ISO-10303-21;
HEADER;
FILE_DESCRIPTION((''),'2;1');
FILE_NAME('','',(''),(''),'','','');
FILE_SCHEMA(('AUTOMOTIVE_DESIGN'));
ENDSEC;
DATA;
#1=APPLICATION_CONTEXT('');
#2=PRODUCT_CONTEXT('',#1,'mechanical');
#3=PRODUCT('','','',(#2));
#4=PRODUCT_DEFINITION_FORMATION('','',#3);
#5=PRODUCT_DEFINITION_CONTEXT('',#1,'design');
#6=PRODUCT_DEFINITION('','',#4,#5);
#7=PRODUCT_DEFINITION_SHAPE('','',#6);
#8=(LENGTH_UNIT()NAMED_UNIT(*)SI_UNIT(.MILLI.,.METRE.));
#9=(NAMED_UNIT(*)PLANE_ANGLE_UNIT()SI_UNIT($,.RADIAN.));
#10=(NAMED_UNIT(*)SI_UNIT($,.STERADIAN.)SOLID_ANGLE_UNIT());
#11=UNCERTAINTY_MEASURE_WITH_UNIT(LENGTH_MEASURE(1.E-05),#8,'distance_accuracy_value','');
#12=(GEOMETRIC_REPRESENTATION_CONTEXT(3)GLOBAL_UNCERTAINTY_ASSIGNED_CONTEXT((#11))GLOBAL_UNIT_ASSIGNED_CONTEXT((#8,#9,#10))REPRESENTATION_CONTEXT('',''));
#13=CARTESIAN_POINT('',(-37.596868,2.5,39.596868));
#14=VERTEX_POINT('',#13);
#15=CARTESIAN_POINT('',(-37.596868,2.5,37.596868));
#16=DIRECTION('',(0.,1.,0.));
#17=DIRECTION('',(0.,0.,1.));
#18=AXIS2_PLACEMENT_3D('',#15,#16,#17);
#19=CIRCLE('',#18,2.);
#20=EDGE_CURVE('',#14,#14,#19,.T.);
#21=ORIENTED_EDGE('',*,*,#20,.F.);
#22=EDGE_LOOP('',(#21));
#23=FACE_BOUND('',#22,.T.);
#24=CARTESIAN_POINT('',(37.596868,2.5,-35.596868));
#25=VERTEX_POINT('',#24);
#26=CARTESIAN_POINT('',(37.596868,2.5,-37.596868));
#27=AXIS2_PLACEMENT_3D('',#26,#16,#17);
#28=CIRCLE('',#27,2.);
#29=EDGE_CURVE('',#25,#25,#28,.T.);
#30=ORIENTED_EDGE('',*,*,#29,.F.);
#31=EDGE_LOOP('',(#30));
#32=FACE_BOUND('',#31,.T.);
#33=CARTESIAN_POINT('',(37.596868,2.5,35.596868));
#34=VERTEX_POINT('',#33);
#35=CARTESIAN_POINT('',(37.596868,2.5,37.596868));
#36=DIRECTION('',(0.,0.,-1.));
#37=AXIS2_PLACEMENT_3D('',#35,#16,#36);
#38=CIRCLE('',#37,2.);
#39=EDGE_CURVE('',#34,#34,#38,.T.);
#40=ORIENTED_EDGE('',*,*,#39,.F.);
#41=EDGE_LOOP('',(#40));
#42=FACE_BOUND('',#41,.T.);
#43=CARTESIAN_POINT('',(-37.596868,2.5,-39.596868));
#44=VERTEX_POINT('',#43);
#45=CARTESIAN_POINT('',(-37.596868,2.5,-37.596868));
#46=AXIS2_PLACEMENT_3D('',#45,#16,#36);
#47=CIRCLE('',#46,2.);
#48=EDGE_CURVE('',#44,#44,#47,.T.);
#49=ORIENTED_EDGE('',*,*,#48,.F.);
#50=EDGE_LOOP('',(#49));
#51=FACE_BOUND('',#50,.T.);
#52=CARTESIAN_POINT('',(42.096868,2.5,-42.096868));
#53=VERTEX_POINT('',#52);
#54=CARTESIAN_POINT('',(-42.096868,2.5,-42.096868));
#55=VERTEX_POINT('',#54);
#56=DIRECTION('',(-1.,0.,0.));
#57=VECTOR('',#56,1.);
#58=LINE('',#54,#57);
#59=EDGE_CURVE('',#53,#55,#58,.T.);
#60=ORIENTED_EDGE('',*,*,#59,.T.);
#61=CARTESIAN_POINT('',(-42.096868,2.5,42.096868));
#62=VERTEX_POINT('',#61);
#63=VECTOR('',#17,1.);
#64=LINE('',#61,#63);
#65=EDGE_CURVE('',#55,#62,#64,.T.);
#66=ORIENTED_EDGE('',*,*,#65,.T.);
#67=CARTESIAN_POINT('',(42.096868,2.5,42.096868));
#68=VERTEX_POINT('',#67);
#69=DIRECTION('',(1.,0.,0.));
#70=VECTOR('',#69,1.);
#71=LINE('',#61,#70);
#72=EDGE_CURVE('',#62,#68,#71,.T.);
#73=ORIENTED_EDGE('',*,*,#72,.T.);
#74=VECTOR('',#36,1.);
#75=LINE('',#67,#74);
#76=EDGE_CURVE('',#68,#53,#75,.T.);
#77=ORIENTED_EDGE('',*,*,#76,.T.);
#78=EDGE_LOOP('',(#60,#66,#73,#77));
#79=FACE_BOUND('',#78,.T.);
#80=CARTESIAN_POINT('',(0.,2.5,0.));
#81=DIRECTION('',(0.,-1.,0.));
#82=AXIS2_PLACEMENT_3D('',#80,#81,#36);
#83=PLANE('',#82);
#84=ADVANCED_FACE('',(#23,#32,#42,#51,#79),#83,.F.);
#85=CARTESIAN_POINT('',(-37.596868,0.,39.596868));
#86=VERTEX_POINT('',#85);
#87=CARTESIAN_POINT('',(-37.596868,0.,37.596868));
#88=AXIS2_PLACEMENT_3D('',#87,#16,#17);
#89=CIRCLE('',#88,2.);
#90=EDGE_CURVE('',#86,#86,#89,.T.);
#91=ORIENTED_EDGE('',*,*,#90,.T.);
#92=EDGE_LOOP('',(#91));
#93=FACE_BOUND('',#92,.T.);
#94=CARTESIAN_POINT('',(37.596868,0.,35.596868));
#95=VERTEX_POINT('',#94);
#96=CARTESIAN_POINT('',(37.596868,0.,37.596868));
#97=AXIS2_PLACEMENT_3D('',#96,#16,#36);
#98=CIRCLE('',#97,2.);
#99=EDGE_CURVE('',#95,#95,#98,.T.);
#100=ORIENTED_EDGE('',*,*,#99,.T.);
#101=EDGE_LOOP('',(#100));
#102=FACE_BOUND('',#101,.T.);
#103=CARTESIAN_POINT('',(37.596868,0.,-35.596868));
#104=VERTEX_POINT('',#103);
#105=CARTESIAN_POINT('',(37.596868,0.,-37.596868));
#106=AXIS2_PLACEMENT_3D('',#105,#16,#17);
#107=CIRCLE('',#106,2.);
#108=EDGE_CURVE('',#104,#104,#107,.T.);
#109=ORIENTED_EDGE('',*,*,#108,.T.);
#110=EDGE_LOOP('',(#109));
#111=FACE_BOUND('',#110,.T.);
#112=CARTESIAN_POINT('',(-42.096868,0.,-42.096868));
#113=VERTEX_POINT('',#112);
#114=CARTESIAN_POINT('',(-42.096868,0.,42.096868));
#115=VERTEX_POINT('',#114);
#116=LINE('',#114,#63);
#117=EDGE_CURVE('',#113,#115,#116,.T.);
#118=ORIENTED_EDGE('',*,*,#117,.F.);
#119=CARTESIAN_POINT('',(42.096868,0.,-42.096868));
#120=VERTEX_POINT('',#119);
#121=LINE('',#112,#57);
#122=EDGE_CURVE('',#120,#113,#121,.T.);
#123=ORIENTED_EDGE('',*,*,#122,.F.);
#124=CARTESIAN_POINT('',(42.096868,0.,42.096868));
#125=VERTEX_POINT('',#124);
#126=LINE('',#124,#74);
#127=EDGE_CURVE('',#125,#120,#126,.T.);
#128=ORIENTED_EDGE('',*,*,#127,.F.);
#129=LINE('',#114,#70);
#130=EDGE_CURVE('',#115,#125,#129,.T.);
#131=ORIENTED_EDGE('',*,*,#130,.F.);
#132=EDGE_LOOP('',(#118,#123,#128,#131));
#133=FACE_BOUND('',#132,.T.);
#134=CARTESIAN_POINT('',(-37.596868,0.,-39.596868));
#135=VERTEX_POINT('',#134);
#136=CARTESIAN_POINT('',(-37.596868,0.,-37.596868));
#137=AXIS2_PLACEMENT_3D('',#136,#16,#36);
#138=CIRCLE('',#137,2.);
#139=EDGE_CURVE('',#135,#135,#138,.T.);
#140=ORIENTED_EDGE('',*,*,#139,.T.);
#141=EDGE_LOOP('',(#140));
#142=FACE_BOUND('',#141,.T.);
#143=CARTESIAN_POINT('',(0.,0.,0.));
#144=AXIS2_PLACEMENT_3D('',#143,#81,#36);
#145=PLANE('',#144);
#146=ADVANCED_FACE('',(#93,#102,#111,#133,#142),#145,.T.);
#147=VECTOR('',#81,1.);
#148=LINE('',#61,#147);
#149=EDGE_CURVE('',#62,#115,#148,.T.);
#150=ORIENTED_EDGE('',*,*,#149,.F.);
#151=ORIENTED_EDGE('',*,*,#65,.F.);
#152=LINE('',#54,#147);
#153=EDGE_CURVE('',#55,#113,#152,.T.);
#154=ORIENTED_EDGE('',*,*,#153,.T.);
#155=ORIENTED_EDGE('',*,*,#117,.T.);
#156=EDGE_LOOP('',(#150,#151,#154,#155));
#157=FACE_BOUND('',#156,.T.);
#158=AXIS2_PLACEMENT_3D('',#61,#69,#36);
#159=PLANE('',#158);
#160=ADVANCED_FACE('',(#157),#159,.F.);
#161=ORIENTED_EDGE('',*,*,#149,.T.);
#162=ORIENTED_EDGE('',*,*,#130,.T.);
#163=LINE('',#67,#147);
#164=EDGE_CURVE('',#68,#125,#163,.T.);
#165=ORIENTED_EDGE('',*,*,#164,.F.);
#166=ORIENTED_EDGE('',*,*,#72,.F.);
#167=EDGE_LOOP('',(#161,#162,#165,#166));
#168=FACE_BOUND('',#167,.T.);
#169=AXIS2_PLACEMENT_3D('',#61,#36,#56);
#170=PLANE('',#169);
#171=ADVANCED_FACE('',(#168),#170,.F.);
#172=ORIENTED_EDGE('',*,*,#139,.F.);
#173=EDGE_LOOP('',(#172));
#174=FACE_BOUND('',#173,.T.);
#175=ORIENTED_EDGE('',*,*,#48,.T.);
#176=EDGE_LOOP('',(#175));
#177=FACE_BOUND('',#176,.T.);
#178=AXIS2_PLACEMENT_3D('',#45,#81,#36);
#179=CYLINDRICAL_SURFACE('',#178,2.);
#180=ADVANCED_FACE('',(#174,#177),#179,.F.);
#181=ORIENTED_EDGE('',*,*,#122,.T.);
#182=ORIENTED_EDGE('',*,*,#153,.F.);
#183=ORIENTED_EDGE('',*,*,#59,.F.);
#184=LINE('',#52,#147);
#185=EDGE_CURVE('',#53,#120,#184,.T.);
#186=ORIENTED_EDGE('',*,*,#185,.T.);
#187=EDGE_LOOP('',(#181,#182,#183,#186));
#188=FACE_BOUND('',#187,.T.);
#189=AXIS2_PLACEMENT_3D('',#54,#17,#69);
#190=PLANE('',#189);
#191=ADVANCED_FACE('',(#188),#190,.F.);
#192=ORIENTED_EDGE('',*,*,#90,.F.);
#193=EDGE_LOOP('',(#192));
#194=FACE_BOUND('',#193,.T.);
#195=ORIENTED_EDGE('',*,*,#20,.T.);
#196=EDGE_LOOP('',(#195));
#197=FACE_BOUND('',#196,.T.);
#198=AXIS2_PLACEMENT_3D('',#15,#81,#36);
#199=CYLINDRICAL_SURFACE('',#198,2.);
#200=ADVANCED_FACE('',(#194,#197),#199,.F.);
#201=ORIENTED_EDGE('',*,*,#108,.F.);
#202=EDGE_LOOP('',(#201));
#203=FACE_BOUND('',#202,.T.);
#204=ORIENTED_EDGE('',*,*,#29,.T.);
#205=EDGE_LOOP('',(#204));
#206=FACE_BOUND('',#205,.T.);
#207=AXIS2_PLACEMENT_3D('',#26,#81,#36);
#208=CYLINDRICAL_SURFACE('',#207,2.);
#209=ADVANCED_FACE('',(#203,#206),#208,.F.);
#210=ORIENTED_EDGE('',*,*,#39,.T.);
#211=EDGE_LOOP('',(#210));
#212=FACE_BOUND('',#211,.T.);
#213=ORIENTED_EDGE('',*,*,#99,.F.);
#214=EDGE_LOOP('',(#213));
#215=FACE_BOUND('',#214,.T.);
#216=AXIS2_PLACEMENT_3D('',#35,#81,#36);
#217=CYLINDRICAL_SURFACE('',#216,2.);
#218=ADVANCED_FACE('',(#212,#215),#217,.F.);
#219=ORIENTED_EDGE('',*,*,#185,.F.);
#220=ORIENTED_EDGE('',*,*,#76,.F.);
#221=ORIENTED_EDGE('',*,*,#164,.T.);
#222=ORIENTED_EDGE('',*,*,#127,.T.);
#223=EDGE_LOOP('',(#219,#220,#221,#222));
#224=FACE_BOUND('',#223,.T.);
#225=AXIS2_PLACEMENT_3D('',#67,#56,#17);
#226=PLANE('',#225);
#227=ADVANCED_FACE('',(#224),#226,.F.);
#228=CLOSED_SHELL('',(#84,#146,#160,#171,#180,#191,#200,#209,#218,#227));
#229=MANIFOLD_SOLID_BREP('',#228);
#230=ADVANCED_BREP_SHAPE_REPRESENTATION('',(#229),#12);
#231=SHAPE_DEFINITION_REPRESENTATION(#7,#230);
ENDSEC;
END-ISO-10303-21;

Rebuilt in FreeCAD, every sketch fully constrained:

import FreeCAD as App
import Part
import Sketcher
from FreeCAD import Vector
Q = App.Units.Quantity

doc = App.newDocument("Part")
body = doc.addObject("PartDesign::Body", "Body")

# Sketch on XZ plane
sketch1 = body.newObject("Sketcher::SketchObject", "Sketch")
sketch1.AttachmentSupport = (doc.getObject("XZ_Plane"), [""])
sketch1.MapMode = "FlatFace"
sketch1.addGeometry([
    Part.LineSegment(Vector(-42.096868, -42.096868, 0), Vector(-42.096868, 42.096868, 0)),  # 0
    Part.LineSegment(Vector(-42.096868, 42.096868, 0), Vector(42.096868, 42.096868, 0)),  # 1
    Part.LineSegment(Vector(42.096868, 42.096868, 0), Vector(42.096868, -42.096868, 0)),  # 2
    Part.LineSegment(Vector(42.096868, -42.096868, 0), Vector(-42.096868, -42.096868, 0)),  # 3
    Part.Circle(Vector(-37.596868, 37.596868, 0), Vector(0, 0, 1), 2),  # 4
    Part.Circle(Vector(37.596868, 37.596868, 0), Vector(0, 0, 1), 2),  # 5
    Part.Circle(Vector(-37.596868, -37.596868, 0), Vector(0, 0, 1), 2),  # 6
    Part.Circle(Vector(37.596868, -37.596868, 0), Vector(0, 0, 1), 2),  # 7
], False)
sketch1.addConstraint([
    Sketcher.Constraint("Coincident", 0, 2, 1, 1),
    Sketcher.Constraint("Coincident", 1, 2, 2, 1),
    Sketcher.Constraint("Coincident", 2, 2, 3, 1),
    Sketcher.Constraint("Coincident", 3, 2, 0, 1),
    Sketcher.Constraint("Vertical", 0),
    Sketcher.Constraint("Horizontal", 1),
    Sketcher.Constraint("Vertical", 2),
    Sketcher.Constraint("Horizontal", 3),
    Sketcher.Constraint("Equal", 4, 5),
    Sketcher.Constraint("Equal", 5, 6),
    Sketcher.Constraint("Equal", 6, 7),
    Sketcher.Constraint("Symmetric", 5, 3, 6, 3, -1, 1),
    Sketcher.Constraint("Symmetric", 4, 3, 7, 3, -1, 1),
    Sketcher.Constraint("Symmetric", 0, 2, 2, 2, -1, 1),
    Sketcher.Constraint("Symmetric", 4, 3, 5, 3, -2),
    Sketcher.Constraint("Equal", 3, 0),
    Sketcher.Constraint("Diameter", 4, Q("4 mm")),
    Sketcher.Constraint("DistanceX", 0, 2, 4, 3, Q("4.5 mm")),
    Sketcher.Constraint("DistanceY", 4, 3, 0, 2, Q("4.5 mm")),
    Sketcher.Constraint("DistanceX", 1, 1, 1, 2, Q("84.193735 mm")),
])
pad1 = body.newObject("PartDesign::Pad", "Pad")
pad1.Profile = sketch1
pad1.Length = 2.5
pad1.Reversed = True

doc.recompute()
